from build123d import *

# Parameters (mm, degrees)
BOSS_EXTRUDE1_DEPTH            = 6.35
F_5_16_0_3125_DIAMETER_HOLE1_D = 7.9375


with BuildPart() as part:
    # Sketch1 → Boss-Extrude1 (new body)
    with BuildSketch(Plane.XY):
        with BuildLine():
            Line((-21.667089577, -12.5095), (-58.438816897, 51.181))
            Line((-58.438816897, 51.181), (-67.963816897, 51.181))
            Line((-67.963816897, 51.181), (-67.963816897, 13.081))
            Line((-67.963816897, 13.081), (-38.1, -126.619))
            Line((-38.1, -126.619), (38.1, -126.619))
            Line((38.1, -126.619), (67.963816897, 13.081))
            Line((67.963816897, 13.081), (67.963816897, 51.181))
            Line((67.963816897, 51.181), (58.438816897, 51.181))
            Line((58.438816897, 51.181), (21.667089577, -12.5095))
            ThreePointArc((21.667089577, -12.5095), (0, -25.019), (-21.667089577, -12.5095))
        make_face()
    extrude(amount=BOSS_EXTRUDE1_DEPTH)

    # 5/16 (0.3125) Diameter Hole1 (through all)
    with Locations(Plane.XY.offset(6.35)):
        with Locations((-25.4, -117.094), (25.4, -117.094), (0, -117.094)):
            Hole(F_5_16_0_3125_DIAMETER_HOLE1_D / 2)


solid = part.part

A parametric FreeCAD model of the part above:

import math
import FreeCAD as App
import Part
import Sketcher

V = App.Vector
Q = App.Units.Quantity

doc = App.newDocument("Part")
body = doc.addObject("PartDesign::Body", "Body")

# Sketch on XY plane
sketch1 = body.newObject("Sketcher::SketchObject", "Sketch")
sketch1.AttachmentSupport = (doc.getObject("XY_Plane"), [""])
sketch1.MapMode = "FlatFace"
sketch1.addGeometry([
    Part.LineSegment(V(-22, -13, 0), V(-58, 51, 0)),  # 0
    Part.LineSegment(V(-58, 51, 0), V(-68, 51, 0)),  # 1
    Part.LineSegment(V(-68, 51, 0), V(-68, 13, 0)),  # 2
    Part.LineSegment(V(-68, 13, 0), V(-38, -127, 0)),  # 3
    Part.LineSegment(V(-38, -127, 0), V(38, -127, 0)),  # 4
    Part.LineSegment(V(38, -127, 0), V(68, 13, 0)),  # 5
    Part.LineSegment(V(68, 13, 0), V(68, 51, 0)),  # 6
    Part.LineSegment(V(68, 51, 0), V(58, 51, 0)),  # 7
    Part.LineSegment(V(58, 51, 0), V(22, -13, 0)),  # 8
    Part.ArcOfCircle(Part.Circle(V(0, 0, 0), V(0, 0, 1), 25), math.radians(-150), math.radians(-30)),  # 9
], False)
sketch1.addConstraint([
    Sketcher.Constraint("Coincident", 0, 2, 1, 1),
    Sketcher.Constraint("Coincident", 1, 2, 2, 1),
    Sketcher.Constraint("Coincident", 2, 2, 3, 1),
    Sketcher.Constraint("Coincident", 3, 2, 4, 1),
    Sketcher.Constraint("Coincident", 4, 2, 5, 1),
    Sketcher.Constraint("Coincident", 5, 2, 6, 1),
    Sketcher.Constraint("Coincident", 6, 2, 7, 1),
    Sketcher.Constraint("Coincident", 7, 2, 8, 1),
    Sketcher.Constraint("Tangent", 8, 2, 9, 2),
    Sketcher.Constraint("Tangent", 9, 1, 0, 1),
    Sketcher.Constraint("Horizontal", 1),
    Sketcher.Constraint("Vertical", 2),
    Sketcher.Constraint("Horizontal", 4),
    Sketcher.Constraint("Vertical", 6),
    Sketcher.Constraint("Horizontal", 7),
    Sketcher.Constraint("Coincident", 9, 3, -1, 1),
    Sketcher.Constraint("Symmetric", 2, 2, 5, 2, -2),
    Sketcher.Constraint("Symmetric", 0, 2, 7, 2, -2),
    Sketcher.Constraint("Equal", 3, 5),
    Sketcher.Constraint("DistanceX", 4, 1, 4, 2, Q("3 in")),
    Sketcher.Constraint("DistanceY", 2, 2, 2, 1, Q("1.5 in")),
    Sketcher.Constraint("Angle", 0, Q("120 deg")),
    Sketcher.Constraint("Radius", 9, Q("0.985 in")),
    Sketcher.Constraint("DistanceY", 3, 2, 0, 2, Q("7 in")),
    Sketcher.Constraint("DistanceX", 1, 2, 1, 1, Q("0.375 in")),
    Sketcher.Constraint("DistanceY", -1, 1, 0, 2, Q("2.015 in")),
])
pad1 = body.newObject("PartDesign::Pad", "Pad")
pad1.Profile = sketch1
pad1.Length = Q("0.25 in")

# Sketch on XY plane
sketch2 = body.newObject("Sketcher::SketchObject", "Sketch001")
sketch2.AttachmentSupport = (doc.getObject("XY_Plane"), [""])
sketch2.MapMode = "FlatFace"
sketch2.AttachmentOffset = App.Placement(V(0, 0, 0.25 * 25.4), App.Rotation())
sketch2.addGeometry([
    Part.Circle(V(-25.4, -117.1, 0), V(0, 0, 1), 4),
    Part.Circle(V(25.4, -117.1, 0), V(0, 0, 1), 4),
    Part.Circle(V(0, -117.1, 0), V(0, 0, 1), 4),
], False)
sketch2.addConstraint([
    Sketcher.Constraint("Equal", 0, 1),
    Sketcher.Constraint("Equal", 1, 2),
    Sketcher.Constraint("Symmetric", 0, 3, 1, 3, -2),
    Sketcher.Constraint("PointOnObject", 2, 3, -2),
    Sketcher.Constraint("Horizontal", 1, 3, 2, 3),
    Sketcher.Constraint("Diameter", 0, Q("0.3125 in")),
    Sketcher.Constraint("DistanceX", 0, 3, -1, 1, Q("1 in")),
    Sketcher.Constraint("DistanceY", 0, 3, -1, 1, Q("4.61 in")),
])
doc.recompute()
hole = body.newObject("PartDesign::Hole", "Hole")
hole.Profile = sketch2
hole.ThreadType = "None"
hole.Diameter = Q("0.3125 in")
hole.DepthType = "ThroughAll"

doc.recompute()
